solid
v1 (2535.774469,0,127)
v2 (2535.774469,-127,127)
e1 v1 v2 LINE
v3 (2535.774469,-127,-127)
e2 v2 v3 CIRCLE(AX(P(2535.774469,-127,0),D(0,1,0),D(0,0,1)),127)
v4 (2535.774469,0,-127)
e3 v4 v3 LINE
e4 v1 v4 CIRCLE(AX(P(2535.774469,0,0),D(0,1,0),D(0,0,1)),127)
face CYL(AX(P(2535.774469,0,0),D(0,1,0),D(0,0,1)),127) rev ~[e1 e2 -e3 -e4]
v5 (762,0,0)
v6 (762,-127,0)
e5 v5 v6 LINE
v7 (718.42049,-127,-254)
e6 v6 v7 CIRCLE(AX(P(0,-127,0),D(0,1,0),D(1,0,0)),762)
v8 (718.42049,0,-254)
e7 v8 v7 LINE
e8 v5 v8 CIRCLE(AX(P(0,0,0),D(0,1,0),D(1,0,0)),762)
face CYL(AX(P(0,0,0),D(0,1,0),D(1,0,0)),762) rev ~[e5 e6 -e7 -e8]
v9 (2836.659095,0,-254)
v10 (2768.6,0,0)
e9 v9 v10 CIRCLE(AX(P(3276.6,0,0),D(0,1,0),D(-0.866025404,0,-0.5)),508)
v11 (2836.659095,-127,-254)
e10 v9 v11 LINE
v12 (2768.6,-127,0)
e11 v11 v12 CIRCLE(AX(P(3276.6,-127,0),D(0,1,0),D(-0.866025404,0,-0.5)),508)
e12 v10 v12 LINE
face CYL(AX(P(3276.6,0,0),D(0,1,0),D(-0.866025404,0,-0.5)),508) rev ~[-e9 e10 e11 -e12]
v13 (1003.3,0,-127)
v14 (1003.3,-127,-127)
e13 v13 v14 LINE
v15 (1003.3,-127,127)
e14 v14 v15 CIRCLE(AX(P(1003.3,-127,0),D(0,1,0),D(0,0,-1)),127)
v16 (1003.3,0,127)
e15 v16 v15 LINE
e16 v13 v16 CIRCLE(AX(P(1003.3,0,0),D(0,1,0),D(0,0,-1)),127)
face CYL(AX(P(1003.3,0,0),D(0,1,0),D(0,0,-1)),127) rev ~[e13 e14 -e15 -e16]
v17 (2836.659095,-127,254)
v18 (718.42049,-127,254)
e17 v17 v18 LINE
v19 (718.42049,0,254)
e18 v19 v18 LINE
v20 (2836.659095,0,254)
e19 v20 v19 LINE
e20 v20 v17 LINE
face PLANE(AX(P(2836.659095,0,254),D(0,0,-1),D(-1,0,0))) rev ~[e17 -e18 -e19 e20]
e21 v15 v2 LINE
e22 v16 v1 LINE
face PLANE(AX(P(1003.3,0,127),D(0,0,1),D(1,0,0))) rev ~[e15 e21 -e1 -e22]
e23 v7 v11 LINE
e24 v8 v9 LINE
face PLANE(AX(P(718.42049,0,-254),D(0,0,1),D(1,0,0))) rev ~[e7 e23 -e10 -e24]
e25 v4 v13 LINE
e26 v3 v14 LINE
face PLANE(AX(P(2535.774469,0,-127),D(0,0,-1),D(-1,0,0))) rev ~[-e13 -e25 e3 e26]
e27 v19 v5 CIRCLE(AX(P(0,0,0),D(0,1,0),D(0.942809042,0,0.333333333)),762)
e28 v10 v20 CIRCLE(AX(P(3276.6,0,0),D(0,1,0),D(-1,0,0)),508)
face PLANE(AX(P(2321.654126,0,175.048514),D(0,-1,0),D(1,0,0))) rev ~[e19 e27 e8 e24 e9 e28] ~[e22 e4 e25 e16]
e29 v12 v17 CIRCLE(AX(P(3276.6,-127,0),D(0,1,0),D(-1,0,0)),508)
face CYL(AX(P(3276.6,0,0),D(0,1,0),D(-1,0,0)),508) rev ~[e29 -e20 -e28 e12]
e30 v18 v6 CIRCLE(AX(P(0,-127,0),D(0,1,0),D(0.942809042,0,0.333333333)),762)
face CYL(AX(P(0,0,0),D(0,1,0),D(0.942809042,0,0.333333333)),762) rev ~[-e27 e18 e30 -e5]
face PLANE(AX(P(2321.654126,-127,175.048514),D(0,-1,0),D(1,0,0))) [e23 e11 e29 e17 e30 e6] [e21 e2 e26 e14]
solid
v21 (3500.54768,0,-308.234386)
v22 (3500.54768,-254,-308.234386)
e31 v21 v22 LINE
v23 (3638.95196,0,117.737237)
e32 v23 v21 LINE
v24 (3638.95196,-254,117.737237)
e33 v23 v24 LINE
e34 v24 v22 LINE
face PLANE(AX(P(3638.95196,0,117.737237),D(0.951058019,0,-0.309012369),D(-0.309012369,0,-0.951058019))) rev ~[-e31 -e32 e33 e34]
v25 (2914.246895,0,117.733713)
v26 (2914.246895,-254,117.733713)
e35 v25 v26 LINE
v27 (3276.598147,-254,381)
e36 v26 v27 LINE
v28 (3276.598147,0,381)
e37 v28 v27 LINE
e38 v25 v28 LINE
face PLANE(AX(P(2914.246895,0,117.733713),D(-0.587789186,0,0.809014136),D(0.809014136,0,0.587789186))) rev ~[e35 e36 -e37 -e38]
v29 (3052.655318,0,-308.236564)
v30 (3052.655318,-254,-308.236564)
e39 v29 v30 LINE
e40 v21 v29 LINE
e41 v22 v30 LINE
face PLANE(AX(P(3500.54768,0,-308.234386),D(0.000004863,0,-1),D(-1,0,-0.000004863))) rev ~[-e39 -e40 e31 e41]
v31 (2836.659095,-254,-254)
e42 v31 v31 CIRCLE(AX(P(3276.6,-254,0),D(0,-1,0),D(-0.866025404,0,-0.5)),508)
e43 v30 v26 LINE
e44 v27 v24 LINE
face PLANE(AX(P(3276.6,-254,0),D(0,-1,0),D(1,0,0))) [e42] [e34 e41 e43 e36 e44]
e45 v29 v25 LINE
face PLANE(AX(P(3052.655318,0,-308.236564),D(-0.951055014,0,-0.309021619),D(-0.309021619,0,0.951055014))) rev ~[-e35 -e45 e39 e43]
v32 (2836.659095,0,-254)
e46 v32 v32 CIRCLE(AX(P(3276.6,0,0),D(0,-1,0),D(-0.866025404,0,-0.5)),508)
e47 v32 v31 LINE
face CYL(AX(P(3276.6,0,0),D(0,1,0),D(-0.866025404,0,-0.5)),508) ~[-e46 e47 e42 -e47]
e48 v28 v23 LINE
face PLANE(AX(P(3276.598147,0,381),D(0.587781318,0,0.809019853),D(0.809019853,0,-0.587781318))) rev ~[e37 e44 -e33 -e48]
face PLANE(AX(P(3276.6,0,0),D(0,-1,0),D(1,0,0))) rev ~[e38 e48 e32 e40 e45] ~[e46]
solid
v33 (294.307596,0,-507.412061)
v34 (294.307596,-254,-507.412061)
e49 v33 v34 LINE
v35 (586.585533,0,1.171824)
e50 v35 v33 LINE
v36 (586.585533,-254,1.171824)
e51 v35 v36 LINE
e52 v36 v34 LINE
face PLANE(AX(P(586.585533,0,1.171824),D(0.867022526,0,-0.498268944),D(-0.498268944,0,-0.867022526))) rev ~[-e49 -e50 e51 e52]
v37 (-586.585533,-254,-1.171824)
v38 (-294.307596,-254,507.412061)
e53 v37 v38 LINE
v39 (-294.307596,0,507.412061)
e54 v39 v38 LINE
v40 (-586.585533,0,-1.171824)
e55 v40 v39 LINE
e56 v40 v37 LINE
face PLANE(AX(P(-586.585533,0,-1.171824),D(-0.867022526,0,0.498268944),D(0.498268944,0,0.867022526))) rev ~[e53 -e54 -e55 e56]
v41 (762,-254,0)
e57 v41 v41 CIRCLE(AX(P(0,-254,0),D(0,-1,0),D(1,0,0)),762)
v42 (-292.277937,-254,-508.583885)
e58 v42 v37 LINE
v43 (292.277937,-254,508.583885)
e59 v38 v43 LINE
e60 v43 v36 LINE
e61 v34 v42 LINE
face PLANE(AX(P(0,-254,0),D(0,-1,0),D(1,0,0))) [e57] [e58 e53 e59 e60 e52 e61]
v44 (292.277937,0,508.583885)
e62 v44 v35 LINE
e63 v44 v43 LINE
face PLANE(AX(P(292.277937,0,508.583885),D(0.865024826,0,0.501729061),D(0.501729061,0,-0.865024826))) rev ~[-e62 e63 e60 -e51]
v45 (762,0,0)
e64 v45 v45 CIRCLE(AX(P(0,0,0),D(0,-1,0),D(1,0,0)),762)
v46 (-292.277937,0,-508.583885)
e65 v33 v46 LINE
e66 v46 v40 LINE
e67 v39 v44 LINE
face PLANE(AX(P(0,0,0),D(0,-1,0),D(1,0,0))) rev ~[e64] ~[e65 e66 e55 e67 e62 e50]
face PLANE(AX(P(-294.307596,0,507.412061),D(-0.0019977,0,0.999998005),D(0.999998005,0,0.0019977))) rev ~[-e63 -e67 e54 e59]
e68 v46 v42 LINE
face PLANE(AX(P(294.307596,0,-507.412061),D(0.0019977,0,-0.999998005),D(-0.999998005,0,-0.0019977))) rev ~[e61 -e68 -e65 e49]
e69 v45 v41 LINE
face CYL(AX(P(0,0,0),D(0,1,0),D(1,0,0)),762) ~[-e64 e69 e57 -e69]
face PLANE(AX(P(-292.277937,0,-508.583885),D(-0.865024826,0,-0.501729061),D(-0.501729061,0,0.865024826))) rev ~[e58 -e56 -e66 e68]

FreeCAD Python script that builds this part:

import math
import FreeCAD as App
import Part
import Sketcher

V = App.Vector
Q = App.Units.Quantity


def add_polygon(sketch, points):
    """Adds a closed chain of lines whose ends are joined by coincident constraints."""
    first, n = sketch.GeometryCount, len(points)
    for a, b in zip(points, points[1:] + points[:1]):
        sketch.addGeometry(Part.LineSegment(App.Vector(*a, 0), App.Vector(*b, 0)), False)
    for i in range(n):
        sketch.addConstraint(Sketcher.Constraint("Coincident", first + i, 2, first + (i + 1) % n, 1))

doc = App.newDocument("Part")
body = doc.addObject("PartDesign::Body", "Body")

sketch1 = body.newObject("Sketcher::SketchObject", "Sketch")
sketch1.AttachmentSupport = (doc.getObject("XZ_Plane"), [""])
sketch1.MapMode = "FlatFace"
sketch1.addGeometry(Part.Circle(V(0, 0, 0), V(0, 0, 1), 762), False)
add_polygon(sketch1, [(-294.307596, 507.412061), (292.277937, 508.583885), (586.585533, 1.171824), (294.307596, -507.412061), (-292.277937, -508.583885), (-586.585533, -1.171824)])
sketch1.addConstraint([
    Sketcher.Constraint("Coincident", 0, 3, -1, 1),
    Sketcher.Constraint("Symmetric", 1, 2, 4, 2, -1, 1),
    Sketcher.Constraint("Symmetric", 2, 2, 5, 2, -1, 1),
    Sketcher.Constraint("Symmetric", 3, 2, 6, 2, -1, 1),
    Sketcher.Constraint("Equal", 1, 2),
    Sketcher.Constraint("Equal", 2, 3),
    Sketcher.Constraint("Diameter", 0, Q("60 in")),
    Sketcher.Constraint("DistanceY", 3, 2, -1, 1, Q("507.412061 mm")),
    Sketcher.Constraint("DistanceY", 2, 2, 1, 2, Q("507.412061 mm")),
    Sketcher.Constraint("DistanceX", 1, 2, 3, 2, Q("2.029659 mm")),
    Sketcher.Constraint("DistanceX", 4, 2, 2, 2, Q("878.863469 mm")),
])
pad1 = body.newObject("PartDesign::Pad", "Pad")
pad1.Profile = sketch1
pad1.Length = Q("10 in")
body2 = doc.addObject("PartDesign::Body", "Body001")

sketch2 = body2.newObject("Sketcher::SketchObject", "Sketch001")
sketch2.AttachmentSupport = (doc.getObject("XZ_Plane001"), [""])
sketch2.MapMode = "FlatFace"
sketch2.addGeometry(Part.Circle(V(3276.6, 0, 0), V(0, 0, 1), 508), False)
add_polygon(sketch2, [(3500.54768, -308.234386), (3052.655318, -308.236564), (2914.246895, 117.733713), (3276.598147, 381), (3638.95196, 117.737237)])
sketch2.addConstraint([
    Sketcher.Constraint("PointOnObject", 0, 3, -1),
    Sketcher.Constraint("Equal", 1, 2),
    Sketcher.Constraint("Equal", 2, 3),
    Sketcher.Constraint("Equal", 3, 4),
    Sketcher.Constraint("Equal", 4, 5),
    Sketcher.Constraint("Diameter", 0, Q("40 in")),
    Sketcher.Constraint("DistanceX", -1, 1, 0, 3, Q("129 in")),
    Sketcher.Constraint("DistanceY", -1, 1, 3, 2, Q("15 in")),
    Sketcher.Constraint("DistanceY", 1, 2, 4, 2, Q("425.973801 mm")),
    Sketcher.Constraint("DistanceY", 5, 2, 2, 2, Q("425.968099 mm")),
    Sketcher.Constraint("DistanceX", -1, 1, 4, 2, Q("3638.95196 mm")),
    Sketcher.Constraint("DistanceX", -1, 1, 5, 2, Q("3500.54768 mm")),
    Sketcher.Constraint("DistanceX", 1, 2, 3, 2, Q("223.942829 mm")),
])
pad2 = body2.newObject("PartDesign::Pad", "Pad001")
pad2.Profile = sketch2
pad2.Length = Q("10 in")
body3 = doc.addObject("PartDesign::Body", "Body002")

sketch3 = body3.newObject("Sketcher::SketchObject", "Sketch002")
sketch3.AttachmentSupport = (doc.getObject("XZ_Plane002"), [""])
sketch3.MapMode = "FlatFace"
sketch3.addGeometry([
    Part.LineSegment(V(2836.659095, 254, 0), V(718.42049, 254, 0)),
    Part.ArcOfCircle(Part.Circle(V(0, 0, 0), V(0, 0, 1), 762), math.radians(0), math.radians(19.471221)),
    Part.ArcOfCircle(Part.Circle(V(0, 0, 0), V(0, 0, 1), 762), math.radians(-19.471221), math.radians(0)),
    Part.LineSegment(V(718.42049, -254, 0), V(2836.659095, -254, 0)),
    Part.ArcOfCircle(Part.Circle(V(3276.6, 0, 0), V(0, 0, 1), 508), math.radians(180), math.radians(210)),
    Part.ArcOfCircle(Part.Circle(V(3276.6, 0, 0), V(0, 0, 1), 508), math.radians(150), math.radians(180)),
    Part.LineSegment(V(1003.3, 127, 0), V(2535.774469, 127, 0)),
    Part.ArcOfCircle(Part.Circle(V(2535.774469, 0, 0), V(0, 0, 1), 127), math.radians(-90), math.radians(90)),
    Part.LineSegment(V(2535.774469, -127, 0), V(1003.3, -127, 0)),
    Part.ArcOfCircle(Part.Circle(V(1003.3, 0, 0), V(0, 0, 1), 127), math.radians(90), math.radians(270)),
], False)
sketch3.addConstraint([
    Sketcher.Constraint("Coincident", 0, 2, 1, 2),
    Sketcher.Constraint("Coincident", 1, 1, 2, 2),
    Sketcher.Constraint("Coincident", 2, 1, 3, 1),
    Sketcher.Constraint("Coincident", 3, 2, 4, 2),
    Sketcher.Constraint("Coincident", 4, 1, 5, 2),
    Sketcher.Constraint("Coincident", 5, 1, 0, 1),
    Sketcher.Constraint("Tangent", 6, 2, 7, 2),
    Sketcher.Constraint("Tangent", 7, 1, 8, 1),
    Sketcher.Constraint("Tangent", 8, 2, 9, 2),
    Sketcher.Constraint("Tangent", 9, 1, 6, 1),
    Sketcher.Constraint("Horizontal", 0),
    Sketcher.Constraint("Horizontal", 3),
    Sketcher.Constraint("Horizontal", 6),
    Sketcher.Constraint("Horizontal", 8),
    Sketcher.Constraint("Coincident", 1, 3, -1, 1),
    Sketcher.Constraint("Coincident", 2, 3, -1, 1),
    Sketcher.Constraint("Coincident", 5, 3, 4, 3),
    Sketcher.Constraint("PointOnObject", 4, 3, -1),
    Sketcher.Constraint("PointOnObject", 7, 3, -1),
    Sketcher.Constraint("PointOnObject", 1, 1, -1),
    Sketcher.Constraint("PointOnObject", 4, 1, -1),
    Sketcher.Constraint("Vertical", 3, 2, 5, 1),
    Sketcher.Constraint("Radius", 1, Q("30 in")),
    Sketcher.Constraint("Radius", 4, Q("20 in")),
    Sketcher.Constraint("Radius", 7, Q("5 in")),
    Sketcher.Constraint("DistanceX", -1, 1, 4, 3, Q("129 in")),
    Sketcher.Constraint("DistanceY", -1, 1, 0, 2, Q("10 in")),
    Sketcher.Constraint("DistanceX", -1, 1, 9, 3, Q("39.5 in")),
    Sketcher.Constraint("DistanceX", 6, 1, 6, 2, Q("1532.474469 mm")),
])
pad3 = body3.newObject("PartDesign::Pad", "Pad002")
pad3.Profile = sketch3
pad3.Length = Q("5 in")

doc.recompute()
